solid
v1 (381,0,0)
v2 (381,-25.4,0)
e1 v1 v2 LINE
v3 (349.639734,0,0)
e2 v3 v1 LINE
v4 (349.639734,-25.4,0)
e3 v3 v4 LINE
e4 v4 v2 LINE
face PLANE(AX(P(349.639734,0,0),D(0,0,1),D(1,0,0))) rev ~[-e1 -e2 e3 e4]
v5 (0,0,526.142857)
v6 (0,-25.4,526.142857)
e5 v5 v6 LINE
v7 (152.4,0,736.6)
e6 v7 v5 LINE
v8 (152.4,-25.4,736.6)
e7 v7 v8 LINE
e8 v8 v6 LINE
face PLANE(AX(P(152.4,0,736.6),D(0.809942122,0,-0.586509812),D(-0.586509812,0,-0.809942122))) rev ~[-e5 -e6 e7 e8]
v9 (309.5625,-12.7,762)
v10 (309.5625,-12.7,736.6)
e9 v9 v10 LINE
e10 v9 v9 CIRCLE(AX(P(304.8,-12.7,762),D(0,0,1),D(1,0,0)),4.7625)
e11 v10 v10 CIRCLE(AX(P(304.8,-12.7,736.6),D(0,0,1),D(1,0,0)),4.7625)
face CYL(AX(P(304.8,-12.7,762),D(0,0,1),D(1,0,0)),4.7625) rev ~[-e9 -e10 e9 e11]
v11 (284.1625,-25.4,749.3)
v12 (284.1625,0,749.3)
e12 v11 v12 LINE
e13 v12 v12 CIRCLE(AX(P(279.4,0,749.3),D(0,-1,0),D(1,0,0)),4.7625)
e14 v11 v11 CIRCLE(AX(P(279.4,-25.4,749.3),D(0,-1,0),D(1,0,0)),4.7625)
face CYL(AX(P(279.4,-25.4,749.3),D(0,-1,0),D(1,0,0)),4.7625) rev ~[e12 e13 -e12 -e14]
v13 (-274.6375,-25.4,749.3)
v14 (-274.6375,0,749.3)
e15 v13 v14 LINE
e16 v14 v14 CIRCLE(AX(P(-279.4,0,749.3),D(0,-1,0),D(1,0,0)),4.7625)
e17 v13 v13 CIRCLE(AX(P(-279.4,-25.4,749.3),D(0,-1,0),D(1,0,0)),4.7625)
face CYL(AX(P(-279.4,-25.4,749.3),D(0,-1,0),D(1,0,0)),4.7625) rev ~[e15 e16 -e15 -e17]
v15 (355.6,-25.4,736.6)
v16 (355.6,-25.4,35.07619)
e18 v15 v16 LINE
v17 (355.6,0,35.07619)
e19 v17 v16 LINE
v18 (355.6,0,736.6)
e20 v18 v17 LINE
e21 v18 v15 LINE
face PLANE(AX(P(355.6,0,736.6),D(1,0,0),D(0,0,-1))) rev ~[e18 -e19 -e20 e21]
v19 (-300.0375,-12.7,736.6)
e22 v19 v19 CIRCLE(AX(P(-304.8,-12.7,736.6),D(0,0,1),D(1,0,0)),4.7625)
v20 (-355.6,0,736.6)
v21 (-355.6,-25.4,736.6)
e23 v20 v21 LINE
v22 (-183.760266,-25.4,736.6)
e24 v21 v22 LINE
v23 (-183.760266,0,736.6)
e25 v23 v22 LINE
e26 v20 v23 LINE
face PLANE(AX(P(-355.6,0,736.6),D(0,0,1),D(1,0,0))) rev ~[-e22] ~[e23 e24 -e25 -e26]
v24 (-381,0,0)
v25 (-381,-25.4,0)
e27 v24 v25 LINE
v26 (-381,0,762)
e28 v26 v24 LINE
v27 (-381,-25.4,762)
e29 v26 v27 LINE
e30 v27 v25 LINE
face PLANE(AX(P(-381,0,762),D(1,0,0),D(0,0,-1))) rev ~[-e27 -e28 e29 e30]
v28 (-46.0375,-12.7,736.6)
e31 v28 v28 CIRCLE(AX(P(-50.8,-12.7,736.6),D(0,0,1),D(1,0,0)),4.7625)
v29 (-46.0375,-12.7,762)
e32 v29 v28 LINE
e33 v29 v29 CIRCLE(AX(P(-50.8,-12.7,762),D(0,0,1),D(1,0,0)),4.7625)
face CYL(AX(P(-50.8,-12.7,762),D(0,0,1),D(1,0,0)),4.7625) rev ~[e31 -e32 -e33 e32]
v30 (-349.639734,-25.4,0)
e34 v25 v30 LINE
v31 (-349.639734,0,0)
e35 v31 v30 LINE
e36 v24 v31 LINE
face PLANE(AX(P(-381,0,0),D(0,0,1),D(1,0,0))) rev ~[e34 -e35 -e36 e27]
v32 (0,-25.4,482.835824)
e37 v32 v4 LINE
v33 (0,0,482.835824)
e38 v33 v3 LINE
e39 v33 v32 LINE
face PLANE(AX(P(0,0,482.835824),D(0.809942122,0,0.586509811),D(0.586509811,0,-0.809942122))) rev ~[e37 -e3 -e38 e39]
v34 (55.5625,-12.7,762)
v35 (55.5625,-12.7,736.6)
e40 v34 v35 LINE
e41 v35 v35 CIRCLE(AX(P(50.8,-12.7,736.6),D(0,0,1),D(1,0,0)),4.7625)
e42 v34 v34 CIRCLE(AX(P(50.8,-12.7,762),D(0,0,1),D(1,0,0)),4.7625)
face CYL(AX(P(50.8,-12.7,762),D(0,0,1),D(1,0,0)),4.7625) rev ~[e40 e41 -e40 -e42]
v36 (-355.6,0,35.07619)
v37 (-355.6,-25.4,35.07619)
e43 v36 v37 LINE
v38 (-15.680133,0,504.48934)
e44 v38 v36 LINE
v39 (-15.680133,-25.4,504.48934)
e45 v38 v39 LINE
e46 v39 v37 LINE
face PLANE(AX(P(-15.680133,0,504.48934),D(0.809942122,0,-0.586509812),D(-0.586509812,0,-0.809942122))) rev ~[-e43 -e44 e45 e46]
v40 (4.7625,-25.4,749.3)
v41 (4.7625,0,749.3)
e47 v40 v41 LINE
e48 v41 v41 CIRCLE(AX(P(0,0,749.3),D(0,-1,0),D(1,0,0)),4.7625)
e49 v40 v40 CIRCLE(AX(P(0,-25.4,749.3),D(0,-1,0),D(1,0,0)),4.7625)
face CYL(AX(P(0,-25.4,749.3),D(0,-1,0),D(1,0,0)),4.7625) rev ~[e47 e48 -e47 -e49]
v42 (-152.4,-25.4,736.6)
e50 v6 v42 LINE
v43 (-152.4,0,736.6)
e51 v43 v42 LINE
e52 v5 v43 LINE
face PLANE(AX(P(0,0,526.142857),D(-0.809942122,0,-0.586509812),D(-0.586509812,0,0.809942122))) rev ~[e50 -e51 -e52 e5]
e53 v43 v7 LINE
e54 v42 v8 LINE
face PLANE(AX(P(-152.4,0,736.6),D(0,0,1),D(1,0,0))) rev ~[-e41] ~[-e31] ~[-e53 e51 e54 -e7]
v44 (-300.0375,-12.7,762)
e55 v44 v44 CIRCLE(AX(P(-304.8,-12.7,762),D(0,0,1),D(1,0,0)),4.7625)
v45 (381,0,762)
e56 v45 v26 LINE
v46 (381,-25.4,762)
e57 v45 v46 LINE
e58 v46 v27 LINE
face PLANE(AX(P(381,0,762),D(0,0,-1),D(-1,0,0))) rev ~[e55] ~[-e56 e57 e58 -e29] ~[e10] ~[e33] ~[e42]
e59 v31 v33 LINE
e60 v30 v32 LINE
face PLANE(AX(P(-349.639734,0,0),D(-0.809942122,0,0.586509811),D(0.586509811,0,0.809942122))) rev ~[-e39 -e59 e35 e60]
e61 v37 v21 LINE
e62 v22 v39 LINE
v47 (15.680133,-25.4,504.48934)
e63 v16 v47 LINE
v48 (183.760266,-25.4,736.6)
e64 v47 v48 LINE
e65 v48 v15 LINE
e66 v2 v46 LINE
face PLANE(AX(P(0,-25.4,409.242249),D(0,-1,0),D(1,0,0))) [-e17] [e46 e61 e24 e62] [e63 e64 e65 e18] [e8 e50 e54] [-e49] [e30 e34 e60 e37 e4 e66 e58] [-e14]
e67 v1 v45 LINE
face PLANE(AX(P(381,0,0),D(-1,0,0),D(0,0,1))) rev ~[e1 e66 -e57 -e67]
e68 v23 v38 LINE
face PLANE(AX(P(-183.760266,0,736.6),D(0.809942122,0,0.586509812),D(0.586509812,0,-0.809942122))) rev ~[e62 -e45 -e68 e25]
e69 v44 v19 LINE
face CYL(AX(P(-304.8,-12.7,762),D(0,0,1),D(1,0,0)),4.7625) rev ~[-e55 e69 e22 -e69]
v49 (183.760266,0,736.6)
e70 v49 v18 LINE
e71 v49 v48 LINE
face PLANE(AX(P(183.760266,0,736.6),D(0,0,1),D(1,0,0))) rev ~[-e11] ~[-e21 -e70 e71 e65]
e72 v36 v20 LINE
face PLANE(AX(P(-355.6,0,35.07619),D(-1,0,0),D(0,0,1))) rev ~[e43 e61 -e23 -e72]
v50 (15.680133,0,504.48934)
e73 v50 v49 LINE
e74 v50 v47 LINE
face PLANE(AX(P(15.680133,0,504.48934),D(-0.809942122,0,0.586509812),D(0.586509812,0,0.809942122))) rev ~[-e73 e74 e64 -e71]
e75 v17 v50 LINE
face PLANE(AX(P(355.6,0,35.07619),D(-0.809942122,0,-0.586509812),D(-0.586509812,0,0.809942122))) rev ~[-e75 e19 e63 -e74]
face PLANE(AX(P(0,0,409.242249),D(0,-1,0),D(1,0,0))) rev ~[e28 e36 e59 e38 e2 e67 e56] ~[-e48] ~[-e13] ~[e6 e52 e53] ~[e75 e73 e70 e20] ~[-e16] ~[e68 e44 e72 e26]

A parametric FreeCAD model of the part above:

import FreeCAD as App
import Part
import Sketcher
Q = App.Units.Quantity


def add_polygon(sketch, points):
    """Adds a closed chain of lines whose ends are joined by coincident constraints."""
    first, n = sketch.GeometryCount, len(points)
    for a, b in zip(points, points[1:] + points[:1]):
        sketch.addGeometry(Part.LineSegment(App.Vector(*a, 0), App.Vector(*b, 0)), False)
    for i in range(n):
        sketch.addConstraint(Sketcher.Constraint("Coincident", first + i, 2, first + (i + 1) % n, 1))

doc = App.newDocument("Part")
params = doc.addObject("Spreadsheet::Sheet", "Params")
for row, (alias, value) in enumerate([
    ("sketch1_width", "30 in"),
    ("sketch1_width2", "12 in"),
    ("pad1_length", "1 in"),
    ("sketch2_diameter", "0.375 in"),
    ("pocket1_length", "1 in"),
    ("sketch3_diameter", "0.375 in"),
    ("pocket2_length", "1 in"),
], start=1):
    params.set(f"A{row}", alias)
    params.set(f"B{row}", "=" + value)
    params.setAlias(f"B{row}", alias)

body = doc.addObject("PartDesign::Body", "Body")

sketch1 = body.newObject("Sketcher::SketchObject", "Sketch")
sketch1.AttachmentSupport = (doc.getObject("XZ_Plane"), [""])
sketch1.MapMode = "FlatFace"
add_polygon(sketch1, [(381, 762), (-381, 762), (-381, 0), (-349.639734, 0), (0, 482.835824), (349.639734, 0), (381, 0)])
add_polygon(sketch1, [(-15.680133, 504.48934), (-355.6, 35.07619), (-355.6, 736.6), (-183.760266, 736.6)])
add_polygon(sketch1, [(15.680133, 504.48934), (183.760266, 736.6), (355.6, 736.6), (355.6, 35.07619)])
add_polygon(sketch1, [(152.4, 736.6), (0, 526.142857), (-152.4, 736.6)])
sketch1.addConstraint([
    Sketcher.Constraint("Horizontal", 0),
    Sketcher.Constraint("Vertical", 1),
    Sketcher.Constraint("Horizontal", 2),
    Sketcher.Constraint("Horizontal", 5),
    Sketcher.Constraint("Vertical", 6),
    Sketcher.Constraint("Vertical", 8),
    Sketcher.Constraint("Horizontal", 9),
    Sketcher.Constraint("Horizontal", 12),
    Sketcher.Constraint("Vertical", 13),
    Sketcher.Constraint("Horizontal", 17),
    Sketcher.Constraint("Symmetric", 2, 2, 4, 2, -1, 1),
    Sketcher.Constraint("Symmetric", 1, 2, 5, 2, -2),
    Sketcher.Constraint("Symmetric", 9, 2, 11, 2, -2),
    Sketcher.Constraint("Symmetric", 7, 2, 13, 2, -2),
    Sketcher.Constraint("Symmetric", 10, 2, 14, 2, -2),
    Sketcher.Constraint("PointOnObject", 3, 2, -2),
    Sketcher.Constraint("PointOnObject", 15, 2, -2),
    Sketcher.Constraint("Parallel", 3, 7),
    Sketcher.Constraint("Parallel", 4, 10),
    Sketcher.Constraint("Parallel", 11, 15),
    Sketcher.Constraint("Parallel", 14, 16),
    Sketcher.Constraint("Horizontal", 12, 2, 16, 2),
    Sketcher.Constraint("Equal", 0, 1),
    Sketcher.Constraint("DistanceX", 0, 2, 0, 1, Q("30 in")),
    Sketcher.Constraint("DistanceX", 17, 1, 17, 2, Q("12 in")),
    Sketcher.Constraint("DistanceX", 7, 2, -1, 1, Q("14 in")),
    Sketcher.Constraint("DistanceY", -1, 1, 8, 2, Q("29 in")),
    Sketcher.Constraint("Distance", 15, 259.8422),
    Sketcher.Constraint("DistanceY", 8, 1, 8, 2, 701.52381),
    Sketcher.Constraint("DistanceX", 10, 2, 11, 2, 199.440399),
    Sketcher.Constraint("DistanceX", 2, 1, 2, 2, 31.360266),
])
sketch1.setExpression("Constraints[41]", "Params.sketch1_width")
sketch1.setExpression("Constraints[42]", "Params.sketch1_width2")
pad1 = body.newObject("PartDesign::Pad", "Pad")
pad1.Profile = sketch1
pad1.setExpression("Length", "Params.pad1_length")

sketch2 = body.newObject("Sketcher::SketchObject", "Sketch001")
sketch2.AttachmentSupport = (doc.getObject("XZ_Plane"), [""])
sketch2.MapMode = "FlatFace"
sketch2.AttachmentOffset = App.Placement(App.Vector(0, 0, 1 * 25.4), App.Rotation())
sketch2.addGeometry([
    Part.Circle(App.Vector(-279.4, 749.3, 0), App.Vector(0, 0, 1), 4.7625),
    Part.Circle(App.Vector(0, 749.3, 0), App.Vector(0, 0, 1), 4.7625),
    Part.Circle(App.Vector(279.4, 749.3, 0), App.Vector(0, 0, 1), 4.7625),
], False)
sketch2.addConstraint([
    Sketcher.Constraint("Equal", 0, 1),
    Sketcher.Constraint("Equal", 1, 2),
    Sketcher.Constraint("Symmetric", 0, 3, 2, 3, -2),
    Sketcher.Constraint("PointOnObject", 1, 3, -2),
    Sketcher.Constraint("Horizontal", 0, 3, 1, 3),
    Sketcher.Constraint("Diameter", 0, Q("0.375 in")),
    Sketcher.Constraint("DistanceX", 0, 3, -1, 1, Q("11 in")),
    Sketcher.Constraint("DistanceY", -1, 1, 0, 3, Q("29.5 in")),
])
sketch2.setExpression("Constraints[5]", "Params.sketch2_diameter")
pocket1 = body.newObject("PartDesign::Pocket", "Pocket")
pocket1.Profile = sketch2
pocket1.setExpression("Length", "Params.pocket1_length")

sketch3 = body.newObject("Sketcher::SketchObject", "Sketch002")
sketch3.AttachmentSupport = (doc.getObject("XY_Plane"), [""])
sketch3.MapMode = "FlatFace"
sketch3.AttachmentOffset = App.Placement(App.Vector(0, 0, 30 * 25.4), App.Rotation())
sketch3.addGeometry([
    Part.Circle(App.Vector(-50.8, -12.7, 0), App.Vector(0, 0, 1), 4.7625),
    Part.Circle(App.Vector(50.8, -12.7, 0), App.Vector(0, 0, 1), 4.7625),
    Part.Circle(App.Vector(304.8, -12.7, 0), App.Vector(0, 0, 1), 4.7625),
    Part.Circle(App.Vector(-304.8, -12.7, 0), App.Vector(0, 0, 1), 4.7625),
], False)
sketch3.addConstraint([
    Sketcher.Constraint("Equal", 0, 1),
    Sketcher.Constraint("Equal", 1, 2),
    Sketcher.Constraint("Equal", 2, 3),
    Sketcher.Constraint("Symmetric", 0, 3, 1, 3, -2),
    Sketcher.Constraint("Symmetric", 2, 3, 3, 3, -2),
    Sketcher.Constraint("Horizontal", 1, 3, 2, 3),
    Sketcher.Constraint("Diameter", 0, Q("0.375 in")),
    Sketcher.Constraint("DistanceX", 0, 3, -1, 1, Q("2 in")),
    Sketcher.Constraint("DistanceX", -1, 1, 2, 3, Q("12 in")),
    Sketcher.Constraint("DistanceY", 0, 3, -1, 1, Q("0.5 in")),
])
sketch3.setExpression("Constraints[6]", "Params.sketch3_diameter")
pocket2 = body.newObject("PartDesign::Pocket", "Pocket001")
pocket2.Profile = sketch3
pocket2.setExpression("Length", "Params.pocket2_length")

doc.recompute()
